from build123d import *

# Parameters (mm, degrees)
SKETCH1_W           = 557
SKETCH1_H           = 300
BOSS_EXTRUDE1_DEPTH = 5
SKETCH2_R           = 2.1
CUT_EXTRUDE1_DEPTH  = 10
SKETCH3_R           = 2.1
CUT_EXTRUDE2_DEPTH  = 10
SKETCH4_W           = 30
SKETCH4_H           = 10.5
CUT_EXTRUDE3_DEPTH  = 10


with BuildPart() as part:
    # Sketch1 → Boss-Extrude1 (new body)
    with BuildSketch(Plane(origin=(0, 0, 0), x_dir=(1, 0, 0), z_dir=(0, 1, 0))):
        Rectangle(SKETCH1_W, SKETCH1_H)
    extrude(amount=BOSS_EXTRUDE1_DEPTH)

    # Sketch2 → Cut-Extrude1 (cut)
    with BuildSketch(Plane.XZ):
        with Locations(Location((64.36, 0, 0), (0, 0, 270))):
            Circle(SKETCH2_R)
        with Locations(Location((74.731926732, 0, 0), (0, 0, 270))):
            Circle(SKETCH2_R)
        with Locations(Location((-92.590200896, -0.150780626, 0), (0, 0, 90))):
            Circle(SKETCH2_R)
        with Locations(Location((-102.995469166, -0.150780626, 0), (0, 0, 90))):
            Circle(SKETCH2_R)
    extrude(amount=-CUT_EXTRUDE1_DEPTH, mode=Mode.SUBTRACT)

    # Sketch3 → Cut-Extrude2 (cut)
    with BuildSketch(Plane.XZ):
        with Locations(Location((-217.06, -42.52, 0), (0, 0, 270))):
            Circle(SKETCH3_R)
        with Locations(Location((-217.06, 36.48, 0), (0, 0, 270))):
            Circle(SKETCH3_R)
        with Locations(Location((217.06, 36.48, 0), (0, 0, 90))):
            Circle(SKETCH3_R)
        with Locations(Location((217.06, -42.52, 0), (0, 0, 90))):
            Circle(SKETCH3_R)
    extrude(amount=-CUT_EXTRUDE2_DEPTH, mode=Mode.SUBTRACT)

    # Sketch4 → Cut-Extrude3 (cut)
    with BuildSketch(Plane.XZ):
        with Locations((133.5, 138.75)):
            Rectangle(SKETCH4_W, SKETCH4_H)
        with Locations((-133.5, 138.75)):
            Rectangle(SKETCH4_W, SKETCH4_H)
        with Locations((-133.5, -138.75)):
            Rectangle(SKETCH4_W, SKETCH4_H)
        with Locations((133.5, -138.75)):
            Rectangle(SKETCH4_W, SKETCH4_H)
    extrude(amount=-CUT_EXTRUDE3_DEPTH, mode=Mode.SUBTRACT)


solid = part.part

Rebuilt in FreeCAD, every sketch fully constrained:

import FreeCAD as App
import Part
import Sketcher

V = App.Vector


def add_polygon(sketch, points):
    """Adds a closed chain of lines whose ends are joined by coincident constraints."""
    first, n = sketch.GeometryCount, len(points)
    for a, b in zip(points, points[1:] + points[:1]):
        sketch.addGeometry(Part.LineSegment(App.Vector(*a, 0), App.Vector(*b, 0)), False)
    for i in range(n):
        sketch.addConstraint(Sketcher.Constraint("Coincident", first + i, 2, first + (i + 1) % n, 1))

doc = App.newDocument("Part")
body = doc.addObject("PartDesign::Body", "Body")

sketch1 = body.newObject("Sketcher::SketchObject", "Sketch")
sketch1.AttachmentSupport = (doc.getObject("XZ_Plane"), [""])
sketch1.MapMode = "FlatFace"
add_polygon(sketch1, [(-278, -150), (-278, 150), (278, 150), (278, -150)])
sketch1.addConstraint(Sketcher.Constraint("Vertical", 0))
sketch1.addConstraint(Sketcher.Constraint("Horizontal", 1))
sketch1.addConstraint(Sketcher.Constraint("Vertical", 2))
sketch1.addConstraint(Sketcher.Constraint("Horizontal", 3))
sketch1.addConstraint(Sketcher.Constraint("Symmetric", 0, 2, 2, 2, -1, 1))
sketch1.addConstraint(Sketcher.Constraint("DistanceX", 1, 1, 1, 2, 557.0))
sketch1.addConstraint(Sketcher.Constraint("DistanceY", 0, 1, 0, 2, 300.0))
pad1 = body.newObject("PartDesign::Pad", "Pad")
pad1.Profile = sketch1
pad1.Length = 5
pad1.Reversed = True

sketch2 = body.newObject("Sketcher::SketchObject", "Sketch001")
sketch2.AttachmentSupport = (doc.getObject("XZ_Plane"), [""])
sketch2.MapMode = "FlatFace"
sketch2.addGeometry(Part.Circle(V(64.4, 0, 0), V(0, 0, 1), 2.1), False)
sketch2.addGeometry(Part.Circle(V(74.7, 0, 0), V(0, 0, 1), 2.1), False)
sketch2.addGeometry(Part.Circle(V(-92.6, -0.2, 0), V(0, 0, 1), 2.1), False)
sketch2.addGeometry(Part.Circle(V(-103, -0.2, 0), V(0, 0, 1), 2.1), False)
sketch2.addConstraint(Sketcher.Constraint("Equal", 0, 1))
sketch2.addConstraint(Sketcher.Constraint("Equal", 1, 2))
sketch2.addConstraint(Sketcher.Constraint("Equal", 2, 3))
sketch2.addConstraint(Sketcher.Constraint("PointOnObject", 0, 3, -1))
sketch2.addConstraint(Sketcher.Constraint("PointOnObject", 1, 3, -1))
sketch2.addConstraint(Sketcher.Constraint("Horizontal", 2, 3, 3, 3))
sketch2.addConstraint(Sketcher.Constraint("Diameter", 0, 4.2))
sketch2.addConstraint(Sketcher.Constraint("DistanceX", -1, 1, 0, 3, 64.36))
sketch2.addConstraint(Sketcher.Constraint("DistanceX", 2, 3, -1, 1, 92.590201))
sketch2.addConstraint(Sketcher.Constraint("DistanceY", 2, 3, -1, 1, 0.150781))
sketch2.addConstraint(Sketcher.Constraint("DistanceX", 3, 3, -1, 1, 102.995469))
sketch2.addConstraint(Sketcher.Constraint("DistanceX", -1, 1, 1, 3, 74.731927))
pocket1 = body.newObject("PartDesign::Pocket", "Pocket")
pocket1.Profile = sketch2
pocket1.Length = 10

sketch3 = body.newObject("Sketcher::SketchObject", "Sketch002")
sketch3.AttachmentSupport = (doc.getObject("XZ_Plane"), [""])
sketch3.MapMode = "FlatFace"
sketch3.addGeometry(Part.Circle(V(-217.1, -42.5, 0), V(0, 0, 1), 2.1), False)
sketch3.addGeometry(Part.Circle(V(-217.1, 36.5, 0), V(0, 0, 1), 2.1), False)
sketch3.addGeometry(Part.Circle(V(217.1, 36.5, 0), V(0, 0, 1), 2.1), False)
sketch3.addGeometry(Part.Circle(V(217.1, -42.5, 0), V(0, 0, 1), 2.1), False)
sketch3.addConstraint(Sketcher.Constraint("Equal", 0, 1))
sketch3.addConstraint(Sketcher.Constraint("Equal", 1, 2))
sketch3.addConstraint(Sketcher.Constraint("Equal", 2, 3))
sketch3.addConstraint(Sketcher.Constraint("Symmetric", 1, 3, 2, 3, -2))
sketch3.addConstraint(Sketcher.Constraint("Symmetric", 0, 3, 3, 3, -2))
sketch3.addConstraint(Sketcher.Constraint("Vertical", 0, 3, 1, 3))
sketch3.addConstraint(Sketcher.Constraint("Diameter", 0, 4.2))
sketch3.addConstraint(Sketcher.Constraint("DistanceY", 0, 3, 1, 3, 79.0))
sketch3.addConstraint(Sketcher.Constraint("DistanceX", 0, 3, -1, 1, 217.06))
sketch3.addConstraint(Sketcher.Constraint("DistanceY", 0, 3, -1, 1, 42.52))
pocket2 = body.newObject("PartDesign::Pocket", "Pocket001")
pocket2.Profile = sketch3
pocket2.Length = 10

sketch4 = body.newObject("Sketcher::SketchObject", "Sketch003")
sketch4.AttachmentSupport = (doc.getObject("XZ_Plane"), [""])
sketch4.MapMode = "FlatFace"
add_polygon(sketch4, [(118, 144), (118, 134), (148, 134), (148, 144)])
add_polygon(sketch4, [(-148, 144), (-148, 134), (-118, 134), (-118, 144)])
add_polygon(sketch4, [(-148, -134), (-148, -144), (-118, -144), (-118, -134)])
add_polygon(sketch4, [(118, -134), (118, -144), (148, -144), (148, -134)])
sketch4.addConstraint(Sketcher.Constraint("Vertical", 0))
sketch4.addConstraint(Sketcher.Constraint("Horizontal", 1))
sketch4.addConstraint(Sketcher.Constraint("Vertical", 2))
sketch4.addConstraint(Sketcher.Constraint("Horizontal", 3))
sketch4.addConstraint(Sketcher.Constraint("Vertical", 4))
sketch4.addConstraint(Sketcher.Constraint("Horizontal", 5))
sketch4.addConstraint(Sketcher.Constraint("Vertical", 6))
sketch4.addConstraint(Sketcher.Constraint("Horizontal", 7))
sketch4.addConstraint(Sketcher.Constraint("Vertical", 8))
sketch4.addConstraint(Sketcher.Constraint("Horizontal", 9))
sketch4.addConstraint(Sketcher.Constraint("Vertical", 10))
sketch4.addConstraint(Sketcher.Constraint("Horizontal", 11))
sketch4.addConstraint(Sketcher.Constraint("Vertical", 12))
sketch4.addConstraint(Sketcher.Constraint("Horizontal", 13))
sketch4.addConstraint(Sketcher.Constraint("Vertical", 14))
sketch4.addConstraint(Sketcher.Constraint("Horizontal", 15))
sketch4.addConstraint(Sketcher.Constraint("Symmetric", 2, 2, 8, 2, -1, 1))
sketch4.addConstraint(Sketcher.Constraint("Symmetric", 0, 2, 10, 2, -1, 1))
sketch4.addConstraint(Sketcher.Constraint("Symmetric", 6, 2, 12, 2, -1, 1))
sketch4.addConstraint(Sketcher.Constraint("Symmetric", 4, 2, 14, 2, -1, 1))
sketch4.addConstraint(Sketcher.Constraint("Symmetric", 1, 2, 4, 2, -2))
sketch4.addConstraint(Sketcher.Constraint("Symmetric", 3, 2, 6, 2, -2))
sketch4.addConstraint(Sketcher.Constraint("DistanceX", 1, 1, 1, 2, 30.0))
sketch4.addConstraint(Sketcher.Constraint("DistanceY", 0, 2, 0, 1, 10.5))
sketch4.addConstraint(Sketcher.Constraint("DistanceY", -1, 1, 2, 2, 144.0))
sketch4.addConstraint(Sketcher.Constraint("DistanceX", 4, 2, 0, 2, 267.0))
pocket3 = body.newObject("PartDesign::Pocket", "Pocket002")
pocket3.Profile = sketch4
pocket3.Length = 10

doc.recompute()
